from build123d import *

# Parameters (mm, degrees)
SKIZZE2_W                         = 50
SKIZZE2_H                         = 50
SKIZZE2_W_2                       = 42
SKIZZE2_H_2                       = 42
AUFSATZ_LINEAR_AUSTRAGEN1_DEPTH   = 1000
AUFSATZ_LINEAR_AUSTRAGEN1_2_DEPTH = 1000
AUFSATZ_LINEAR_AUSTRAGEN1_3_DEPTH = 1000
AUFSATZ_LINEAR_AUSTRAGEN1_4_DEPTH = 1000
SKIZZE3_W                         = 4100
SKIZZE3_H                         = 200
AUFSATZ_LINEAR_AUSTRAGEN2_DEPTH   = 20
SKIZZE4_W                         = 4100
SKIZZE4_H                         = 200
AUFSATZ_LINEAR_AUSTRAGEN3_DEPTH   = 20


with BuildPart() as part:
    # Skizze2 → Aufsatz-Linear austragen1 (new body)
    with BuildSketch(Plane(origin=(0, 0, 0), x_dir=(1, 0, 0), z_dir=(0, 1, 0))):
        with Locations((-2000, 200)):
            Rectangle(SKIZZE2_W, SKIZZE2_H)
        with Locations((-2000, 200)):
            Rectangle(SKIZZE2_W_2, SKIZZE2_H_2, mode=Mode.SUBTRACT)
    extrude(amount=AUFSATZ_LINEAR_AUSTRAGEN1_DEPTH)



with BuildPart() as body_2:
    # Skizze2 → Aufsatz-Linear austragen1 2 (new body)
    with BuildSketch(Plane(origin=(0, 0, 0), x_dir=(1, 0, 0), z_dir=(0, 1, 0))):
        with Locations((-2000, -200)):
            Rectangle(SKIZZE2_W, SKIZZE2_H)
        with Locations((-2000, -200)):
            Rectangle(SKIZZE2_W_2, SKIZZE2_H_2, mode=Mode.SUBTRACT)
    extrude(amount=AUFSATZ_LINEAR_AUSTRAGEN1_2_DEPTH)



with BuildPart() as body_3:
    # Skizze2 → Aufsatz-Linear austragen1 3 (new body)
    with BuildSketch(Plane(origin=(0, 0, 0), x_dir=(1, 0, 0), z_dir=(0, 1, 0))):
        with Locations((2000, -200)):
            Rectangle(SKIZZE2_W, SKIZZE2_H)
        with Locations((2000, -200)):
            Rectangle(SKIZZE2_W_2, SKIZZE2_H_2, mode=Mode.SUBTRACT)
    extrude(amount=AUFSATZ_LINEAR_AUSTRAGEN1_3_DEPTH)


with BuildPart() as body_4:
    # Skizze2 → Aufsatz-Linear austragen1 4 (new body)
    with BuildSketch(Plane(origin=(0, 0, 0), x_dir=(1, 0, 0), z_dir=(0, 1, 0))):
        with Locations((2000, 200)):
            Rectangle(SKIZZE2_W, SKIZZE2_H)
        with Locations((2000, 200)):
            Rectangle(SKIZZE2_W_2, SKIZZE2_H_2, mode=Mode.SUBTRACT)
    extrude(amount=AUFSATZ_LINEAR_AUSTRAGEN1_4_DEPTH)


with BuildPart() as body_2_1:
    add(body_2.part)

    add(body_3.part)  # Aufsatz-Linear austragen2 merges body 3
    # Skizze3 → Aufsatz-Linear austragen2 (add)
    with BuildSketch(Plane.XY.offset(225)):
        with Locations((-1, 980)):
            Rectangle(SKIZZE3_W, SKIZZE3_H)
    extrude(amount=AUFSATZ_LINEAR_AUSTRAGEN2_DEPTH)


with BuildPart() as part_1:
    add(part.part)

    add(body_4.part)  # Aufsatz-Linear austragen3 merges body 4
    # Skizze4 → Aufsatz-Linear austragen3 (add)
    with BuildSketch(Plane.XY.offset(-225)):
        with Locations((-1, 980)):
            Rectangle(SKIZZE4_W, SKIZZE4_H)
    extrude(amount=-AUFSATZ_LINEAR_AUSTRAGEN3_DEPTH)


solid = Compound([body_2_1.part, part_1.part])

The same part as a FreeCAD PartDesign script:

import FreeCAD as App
import Part
import Sketcher
from FreeCAD import Vector
Q = App.Units.Quantity


def add_polygon(sketch, points):
    """Adds a closed chain of lines whose ends are joined by coincident constraints."""
    first, n = sketch.GeometryCount, len(points)
    for a, b in zip(points, points[1:] + points[:1]):
        sketch.addGeometry(Part.LineSegment(App.Vector(*a, 0), App.Vector(*b, 0)), False)
    for i in range(n):
        sketch.addConstraint(Sketcher.Constraint("Coincident", first + i, 2, first + (i + 1) % n, 1))

doc = App.newDocument("Part")
body = doc.addObject("PartDesign::Body", "Body")

sketch1 = doc.addObject("Sketcher::SketchObject", "Sketch")
body.addObject(sketch1)
sketch1.AttachmentSupport = (doc.XZ_Plane, [""])
sketch1.MapMode = "FlatFace"
add_polygon(sketch1, [(-2025, -225), (-2025, -175), (-1975, -175), (-1975, -225)])
add_polygon(sketch1, [(-1979, -179), (-2021, -179), (-2021, -221), (-1979, -221)])
sketch1.addConstraint([
    Sketcher.Constraint("Vertical", 0),
    Sketcher.Constraint("Horizontal", 1),
    Sketcher.Constraint("Vertical", 2),
    Sketcher.Constraint("Horizontal", 3),
    Sketcher.Constraint("Horizontal", 4),
    Sketcher.Constraint("Vertical", 5),
    Sketcher.Constraint("Horizontal", 6),
    Sketcher.Constraint("Vertical", 7),
    Sketcher.Constraint("Equal", 3, 0),
    Sketcher.Constraint("Equal", 6, 5),
    Sketcher.Constraint("DistanceX", 1, 1, 1, 2, Q("50 mm")),
    Sketcher.Constraint("DistanceX", 4, 2, 4, 1, Q("42 mm")),
    Sketcher.Constraint("DistanceX", 0, 2, -1, 1, Q("2025 mm")),
    Sketcher.Constraint("DistanceY", 0, 2, -1, 1, Q("175 mm")),
    Sketcher.Constraint("DistanceX", 4, 2, -1, 1, Q("2021 mm")),
    Sketcher.Constraint("DistanceY", 4, 2, -1, 1, Q("179 mm")),
])
pad1 = doc.addObject("PartDesign::Pad", "Pad")
body.addObject(pad1)
pad1.Profile = sketch1
pad1.Length = 1000
pad1.Reversed = True
body2 = doc.addObject("PartDesign::Body", "Body001")

sketch2 = doc.addObject("Sketcher::SketchObject", "Sketch001")
body2.addObject(sketch2)
sketch2.AttachmentSupport = (doc.getObject("XZ_Plane001"), [""])
sketch2.MapMode = "FlatFace"
add_polygon(sketch2, [(-2025, 175), (-2025, 225), (-1975, 225), (-1975, 175)])
add_polygon(sketch2, [(-1979, 221), (-2021, 221), (-2021, 179), (-1979, 179)])
sketch2.addConstraint([
    Sketcher.Constraint("Vertical", 0),
    Sketcher.Constraint("Horizontal", 1),
    Sketcher.Constraint("Vertical", 2),
    Sketcher.Constraint("Horizontal", 3),
    Sketcher.Constraint("Horizontal", 4),
    Sketcher.Constraint("Vertical", 5),
    Sketcher.Constraint("Horizontal", 6),
    Sketcher.Constraint("Vertical", 7),
    Sketcher.Constraint("Equal", 3, 0),
    Sketcher.Constraint("Equal", 6, 5),
    Sketcher.Constraint("DistanceX", 1, 1, 1, 2, Q("50 mm")),
    Sketcher.Constraint("DistanceX", 4, 2, 4, 1, Q("42 mm")),
    Sketcher.Constraint("DistanceX", 0, 2, -1, 1, Q("2025 mm")),
    Sketcher.Constraint("DistanceY", -1, 1, 0, 2, Q("225 mm")),
    Sketcher.Constraint("DistanceX", 4, 2, -1, 1, Q("2021 mm")),
    Sketcher.Constraint("DistanceY", -1, 1, 4, 2, Q("221 mm")),
])
pad2 = doc.addObject("PartDesign::Pad", "Pad001")
body2.addObject(pad2)
pad2.Profile = sketch2
pad2.Length = 1000
pad2.Reversed = True
body3 = doc.addObject("PartDesign::Body", "Body002")

sketch3 = doc.addObject("Sketcher::SketchObject", "Sketch002")
body3.addObject(sketch3)
sketch3.AttachmentSupport = (doc.getObject("XZ_Plane002"), [""])
sketch3.MapMode = "FlatFace"
add_polygon(sketch3, [(1975, 175), (1975, 225), (2025, 225), (2025, 175)])
add_polygon(sketch3, [(2021, 221), (1979, 221), (1979, 179), (2021, 179)])
sketch3.addConstraint([
    Sketcher.Constraint("Vertical", 0),
    Sketcher.Constraint("Horizontal", 1),
    Sketcher.Constraint("Vertical", 2),
    Sketcher.Constraint("Horizontal", 3),
    Sketcher.Constraint("Horizontal", 4),
    Sketcher.Constraint("Vertical", 5),
    Sketcher.Constraint("Horizontal", 6),
    Sketcher.Constraint("Vertical", 7),
    Sketcher.Constraint("Equal", 3, 0),
    Sketcher.Constraint("Equal", 6, 5),
    Sketcher.Constraint("DistanceX", 1, 1, 1, 2, Q("50 mm")),
    Sketcher.Constraint("DistanceX", 4, 2, 4, 1, Q("42 mm")),
    Sketcher.Constraint("DistanceX", -1, 1, 0, 2, Q("1975 mm")),
    Sketcher.Constraint("DistanceY", -1, 1, 0, 2, Q("225 mm")),
    Sketcher.Constraint("DistanceX", -1, 1, 4, 2, Q("1979 mm")),
    Sketcher.Constraint("DistanceY", -1, 1, 4, 2, Q("221 mm")),
])
pad3 = doc.addObject("PartDesign::Pad", "Pad002")
body3.addObject(pad3)
pad3.Profile = sketch3
pad3.Length = 1000
pad3.Reversed = True
body4 = doc.addObject("PartDesign::Body", "Body003")

sketch4 = doc.addObject("Sketcher::SketchObject", "Sketch003")
body4.addObject(sketch4)
sketch4.AttachmentSupport = (doc.getObject("XZ_Plane003"), [""])
sketch4.MapMode = "FlatFace"
add_polygon(sketch4, [(1975, -225), (1975, -175), (2025, -175), (2025, -225)])
add_polygon(sketch4, [(2021, -179), (1979, -179), (1979, -221), (2021, -221)])
sketch4.addConstraint([
    Sketcher.Constraint("Vertical", 0),
    Sketcher.Constraint("Horizontal", 1),
    Sketcher.Constraint("Vertical", 2),
    Sketcher.Constraint("Horizontal", 3),
    Sketcher.Constraint("Horizontal", 4),
    Sketcher.Constraint("Vertical", 5),
    Sketcher.Constraint("Horizontal", 6),
    Sketcher.Constraint("Vertical", 7),
    Sketcher.Constraint("Equal", 3, 0),
    Sketcher.Constraint("Equal", 6, 5),
    Sketcher.Constraint("DistanceX", 1, 1, 1, 2, Q("50 mm")),
    Sketcher.Constraint("DistanceX", 4, 2, 4, 1, Q("42 mm")),
    Sketcher.Constraint("DistanceX", -1, 1, 0, 2, Q("1975 mm")),
    Sketcher.Constraint("DistanceY", 0, 2, -1, 1, Q("175 mm")),
    Sketcher.Constraint("DistanceX", -1, 1, 4, 2, Q("1979 mm")),
    Sketcher.Constraint("DistanceY", 4, 2, -1, 1, Q("179 mm")),
])
pad4 = doc.addObject("PartDesign::Pad", "Pad003")
body4.addObject(pad4)
pad4.Profile = sketch4
pad4.Length = 1000
pad4.Reversed = True
body2.AllowCompound = True
doc.recompute()

boolean = doc.addObject("PartDesign::Boolean", "Boolean")
body2.addObject(boolean)
boolean.Type = "Fuse"
boolean.addObjects([body3])

sketch5 = doc.addObject("Sketcher::SketchObject", "Sketch004")
body2.addObject(sketch5)
sketch5.AttachmentSupport = (doc.getObject("XY_Plane001"), [""])
sketch5.MapMode = "FlatFace"
sketch5.AttachmentOffset = App.Placement(Vector(0, 0, 225), App.Rotation())
add_polygon(sketch5, [(-2051, 1080), (-2051, 880), (2049, 880), (2049, 1080)])
sketch5.addConstraint([
    Sketcher.Constraint("Vertical", 0),
    Sketcher.Constraint("Horizontal", 1),
    Sketcher.Constraint("Vertical", 2),
    Sketcher.Constraint("Horizontal", 3),
    Sketcher.Constraint("DistanceX", 1, 1, 1, 2, Q("4100 mm")),
    Sketcher.Constraint("DistanceY", 0, 2, 0, 1, Q("200 mm")),
    Sketcher.Constraint("DistanceX", 0, 2, -1, 1, Q("2051 mm")),
    Sketcher.Constraint("DistanceY", -1, 1, 0, 2, Q("880 mm")),
])
pad5 = doc.addObject("PartDesign::Pad", "Pad004")
body2.addObject(pad5)
pad5.Profile = sketch5
pad5.Length = 20
body.AllowCompound = True
doc.recompute()

boolean2 = doc.addObject("PartDesign::Boolean", "Boolean001")
body.addObject(boolean2)
boolean2.Type = "Fuse"
boolean2.addObjects([body4])

sketch6 = doc.addObject("Sketcher::SketchObject", "Sketch005")
body.addObject(sketch6)
sketch6.AttachmentSupport = (doc.XY_Plane, [""])
sketch6.MapMode = "FlatFace"
sketch6.AttachmentOffset = App.Placement(Vector(0, 0, -225), App.Rotation())
add_polygon(sketch6, [(-2051, 1080), (-2051, 880), (2049, 880), (2049, 1080)])
sketch6.addConstraint([
    Sketcher.Constraint("Vertical", 0),
    Sketcher.Constraint("Horizontal", 1),
    Sketcher.Constraint("Vertical", 2),
    Sketcher.Constraint("Horizontal", 3),
    Sketcher.Constraint("DistanceX", 1, 1, 1, 2, Q("4100 mm")),
    Sketcher.Constraint("DistanceY", 0, 2, 0, 1, Q("200 mm")),
    Sketcher.Constraint("DistanceX", 0, 2, -1, 1, Q("2051 mm")),
    Sketcher.Constraint("DistanceY", -1, 1, 0, 2, Q("880 mm")),
])
pad6 = doc.addObject("PartDesign::Pad", "Pad005")
body.addObject(pad6)
pad6.Profile = sketch6
pad6.Length = 20
pad6.Reversed = True

doc.recompute()
